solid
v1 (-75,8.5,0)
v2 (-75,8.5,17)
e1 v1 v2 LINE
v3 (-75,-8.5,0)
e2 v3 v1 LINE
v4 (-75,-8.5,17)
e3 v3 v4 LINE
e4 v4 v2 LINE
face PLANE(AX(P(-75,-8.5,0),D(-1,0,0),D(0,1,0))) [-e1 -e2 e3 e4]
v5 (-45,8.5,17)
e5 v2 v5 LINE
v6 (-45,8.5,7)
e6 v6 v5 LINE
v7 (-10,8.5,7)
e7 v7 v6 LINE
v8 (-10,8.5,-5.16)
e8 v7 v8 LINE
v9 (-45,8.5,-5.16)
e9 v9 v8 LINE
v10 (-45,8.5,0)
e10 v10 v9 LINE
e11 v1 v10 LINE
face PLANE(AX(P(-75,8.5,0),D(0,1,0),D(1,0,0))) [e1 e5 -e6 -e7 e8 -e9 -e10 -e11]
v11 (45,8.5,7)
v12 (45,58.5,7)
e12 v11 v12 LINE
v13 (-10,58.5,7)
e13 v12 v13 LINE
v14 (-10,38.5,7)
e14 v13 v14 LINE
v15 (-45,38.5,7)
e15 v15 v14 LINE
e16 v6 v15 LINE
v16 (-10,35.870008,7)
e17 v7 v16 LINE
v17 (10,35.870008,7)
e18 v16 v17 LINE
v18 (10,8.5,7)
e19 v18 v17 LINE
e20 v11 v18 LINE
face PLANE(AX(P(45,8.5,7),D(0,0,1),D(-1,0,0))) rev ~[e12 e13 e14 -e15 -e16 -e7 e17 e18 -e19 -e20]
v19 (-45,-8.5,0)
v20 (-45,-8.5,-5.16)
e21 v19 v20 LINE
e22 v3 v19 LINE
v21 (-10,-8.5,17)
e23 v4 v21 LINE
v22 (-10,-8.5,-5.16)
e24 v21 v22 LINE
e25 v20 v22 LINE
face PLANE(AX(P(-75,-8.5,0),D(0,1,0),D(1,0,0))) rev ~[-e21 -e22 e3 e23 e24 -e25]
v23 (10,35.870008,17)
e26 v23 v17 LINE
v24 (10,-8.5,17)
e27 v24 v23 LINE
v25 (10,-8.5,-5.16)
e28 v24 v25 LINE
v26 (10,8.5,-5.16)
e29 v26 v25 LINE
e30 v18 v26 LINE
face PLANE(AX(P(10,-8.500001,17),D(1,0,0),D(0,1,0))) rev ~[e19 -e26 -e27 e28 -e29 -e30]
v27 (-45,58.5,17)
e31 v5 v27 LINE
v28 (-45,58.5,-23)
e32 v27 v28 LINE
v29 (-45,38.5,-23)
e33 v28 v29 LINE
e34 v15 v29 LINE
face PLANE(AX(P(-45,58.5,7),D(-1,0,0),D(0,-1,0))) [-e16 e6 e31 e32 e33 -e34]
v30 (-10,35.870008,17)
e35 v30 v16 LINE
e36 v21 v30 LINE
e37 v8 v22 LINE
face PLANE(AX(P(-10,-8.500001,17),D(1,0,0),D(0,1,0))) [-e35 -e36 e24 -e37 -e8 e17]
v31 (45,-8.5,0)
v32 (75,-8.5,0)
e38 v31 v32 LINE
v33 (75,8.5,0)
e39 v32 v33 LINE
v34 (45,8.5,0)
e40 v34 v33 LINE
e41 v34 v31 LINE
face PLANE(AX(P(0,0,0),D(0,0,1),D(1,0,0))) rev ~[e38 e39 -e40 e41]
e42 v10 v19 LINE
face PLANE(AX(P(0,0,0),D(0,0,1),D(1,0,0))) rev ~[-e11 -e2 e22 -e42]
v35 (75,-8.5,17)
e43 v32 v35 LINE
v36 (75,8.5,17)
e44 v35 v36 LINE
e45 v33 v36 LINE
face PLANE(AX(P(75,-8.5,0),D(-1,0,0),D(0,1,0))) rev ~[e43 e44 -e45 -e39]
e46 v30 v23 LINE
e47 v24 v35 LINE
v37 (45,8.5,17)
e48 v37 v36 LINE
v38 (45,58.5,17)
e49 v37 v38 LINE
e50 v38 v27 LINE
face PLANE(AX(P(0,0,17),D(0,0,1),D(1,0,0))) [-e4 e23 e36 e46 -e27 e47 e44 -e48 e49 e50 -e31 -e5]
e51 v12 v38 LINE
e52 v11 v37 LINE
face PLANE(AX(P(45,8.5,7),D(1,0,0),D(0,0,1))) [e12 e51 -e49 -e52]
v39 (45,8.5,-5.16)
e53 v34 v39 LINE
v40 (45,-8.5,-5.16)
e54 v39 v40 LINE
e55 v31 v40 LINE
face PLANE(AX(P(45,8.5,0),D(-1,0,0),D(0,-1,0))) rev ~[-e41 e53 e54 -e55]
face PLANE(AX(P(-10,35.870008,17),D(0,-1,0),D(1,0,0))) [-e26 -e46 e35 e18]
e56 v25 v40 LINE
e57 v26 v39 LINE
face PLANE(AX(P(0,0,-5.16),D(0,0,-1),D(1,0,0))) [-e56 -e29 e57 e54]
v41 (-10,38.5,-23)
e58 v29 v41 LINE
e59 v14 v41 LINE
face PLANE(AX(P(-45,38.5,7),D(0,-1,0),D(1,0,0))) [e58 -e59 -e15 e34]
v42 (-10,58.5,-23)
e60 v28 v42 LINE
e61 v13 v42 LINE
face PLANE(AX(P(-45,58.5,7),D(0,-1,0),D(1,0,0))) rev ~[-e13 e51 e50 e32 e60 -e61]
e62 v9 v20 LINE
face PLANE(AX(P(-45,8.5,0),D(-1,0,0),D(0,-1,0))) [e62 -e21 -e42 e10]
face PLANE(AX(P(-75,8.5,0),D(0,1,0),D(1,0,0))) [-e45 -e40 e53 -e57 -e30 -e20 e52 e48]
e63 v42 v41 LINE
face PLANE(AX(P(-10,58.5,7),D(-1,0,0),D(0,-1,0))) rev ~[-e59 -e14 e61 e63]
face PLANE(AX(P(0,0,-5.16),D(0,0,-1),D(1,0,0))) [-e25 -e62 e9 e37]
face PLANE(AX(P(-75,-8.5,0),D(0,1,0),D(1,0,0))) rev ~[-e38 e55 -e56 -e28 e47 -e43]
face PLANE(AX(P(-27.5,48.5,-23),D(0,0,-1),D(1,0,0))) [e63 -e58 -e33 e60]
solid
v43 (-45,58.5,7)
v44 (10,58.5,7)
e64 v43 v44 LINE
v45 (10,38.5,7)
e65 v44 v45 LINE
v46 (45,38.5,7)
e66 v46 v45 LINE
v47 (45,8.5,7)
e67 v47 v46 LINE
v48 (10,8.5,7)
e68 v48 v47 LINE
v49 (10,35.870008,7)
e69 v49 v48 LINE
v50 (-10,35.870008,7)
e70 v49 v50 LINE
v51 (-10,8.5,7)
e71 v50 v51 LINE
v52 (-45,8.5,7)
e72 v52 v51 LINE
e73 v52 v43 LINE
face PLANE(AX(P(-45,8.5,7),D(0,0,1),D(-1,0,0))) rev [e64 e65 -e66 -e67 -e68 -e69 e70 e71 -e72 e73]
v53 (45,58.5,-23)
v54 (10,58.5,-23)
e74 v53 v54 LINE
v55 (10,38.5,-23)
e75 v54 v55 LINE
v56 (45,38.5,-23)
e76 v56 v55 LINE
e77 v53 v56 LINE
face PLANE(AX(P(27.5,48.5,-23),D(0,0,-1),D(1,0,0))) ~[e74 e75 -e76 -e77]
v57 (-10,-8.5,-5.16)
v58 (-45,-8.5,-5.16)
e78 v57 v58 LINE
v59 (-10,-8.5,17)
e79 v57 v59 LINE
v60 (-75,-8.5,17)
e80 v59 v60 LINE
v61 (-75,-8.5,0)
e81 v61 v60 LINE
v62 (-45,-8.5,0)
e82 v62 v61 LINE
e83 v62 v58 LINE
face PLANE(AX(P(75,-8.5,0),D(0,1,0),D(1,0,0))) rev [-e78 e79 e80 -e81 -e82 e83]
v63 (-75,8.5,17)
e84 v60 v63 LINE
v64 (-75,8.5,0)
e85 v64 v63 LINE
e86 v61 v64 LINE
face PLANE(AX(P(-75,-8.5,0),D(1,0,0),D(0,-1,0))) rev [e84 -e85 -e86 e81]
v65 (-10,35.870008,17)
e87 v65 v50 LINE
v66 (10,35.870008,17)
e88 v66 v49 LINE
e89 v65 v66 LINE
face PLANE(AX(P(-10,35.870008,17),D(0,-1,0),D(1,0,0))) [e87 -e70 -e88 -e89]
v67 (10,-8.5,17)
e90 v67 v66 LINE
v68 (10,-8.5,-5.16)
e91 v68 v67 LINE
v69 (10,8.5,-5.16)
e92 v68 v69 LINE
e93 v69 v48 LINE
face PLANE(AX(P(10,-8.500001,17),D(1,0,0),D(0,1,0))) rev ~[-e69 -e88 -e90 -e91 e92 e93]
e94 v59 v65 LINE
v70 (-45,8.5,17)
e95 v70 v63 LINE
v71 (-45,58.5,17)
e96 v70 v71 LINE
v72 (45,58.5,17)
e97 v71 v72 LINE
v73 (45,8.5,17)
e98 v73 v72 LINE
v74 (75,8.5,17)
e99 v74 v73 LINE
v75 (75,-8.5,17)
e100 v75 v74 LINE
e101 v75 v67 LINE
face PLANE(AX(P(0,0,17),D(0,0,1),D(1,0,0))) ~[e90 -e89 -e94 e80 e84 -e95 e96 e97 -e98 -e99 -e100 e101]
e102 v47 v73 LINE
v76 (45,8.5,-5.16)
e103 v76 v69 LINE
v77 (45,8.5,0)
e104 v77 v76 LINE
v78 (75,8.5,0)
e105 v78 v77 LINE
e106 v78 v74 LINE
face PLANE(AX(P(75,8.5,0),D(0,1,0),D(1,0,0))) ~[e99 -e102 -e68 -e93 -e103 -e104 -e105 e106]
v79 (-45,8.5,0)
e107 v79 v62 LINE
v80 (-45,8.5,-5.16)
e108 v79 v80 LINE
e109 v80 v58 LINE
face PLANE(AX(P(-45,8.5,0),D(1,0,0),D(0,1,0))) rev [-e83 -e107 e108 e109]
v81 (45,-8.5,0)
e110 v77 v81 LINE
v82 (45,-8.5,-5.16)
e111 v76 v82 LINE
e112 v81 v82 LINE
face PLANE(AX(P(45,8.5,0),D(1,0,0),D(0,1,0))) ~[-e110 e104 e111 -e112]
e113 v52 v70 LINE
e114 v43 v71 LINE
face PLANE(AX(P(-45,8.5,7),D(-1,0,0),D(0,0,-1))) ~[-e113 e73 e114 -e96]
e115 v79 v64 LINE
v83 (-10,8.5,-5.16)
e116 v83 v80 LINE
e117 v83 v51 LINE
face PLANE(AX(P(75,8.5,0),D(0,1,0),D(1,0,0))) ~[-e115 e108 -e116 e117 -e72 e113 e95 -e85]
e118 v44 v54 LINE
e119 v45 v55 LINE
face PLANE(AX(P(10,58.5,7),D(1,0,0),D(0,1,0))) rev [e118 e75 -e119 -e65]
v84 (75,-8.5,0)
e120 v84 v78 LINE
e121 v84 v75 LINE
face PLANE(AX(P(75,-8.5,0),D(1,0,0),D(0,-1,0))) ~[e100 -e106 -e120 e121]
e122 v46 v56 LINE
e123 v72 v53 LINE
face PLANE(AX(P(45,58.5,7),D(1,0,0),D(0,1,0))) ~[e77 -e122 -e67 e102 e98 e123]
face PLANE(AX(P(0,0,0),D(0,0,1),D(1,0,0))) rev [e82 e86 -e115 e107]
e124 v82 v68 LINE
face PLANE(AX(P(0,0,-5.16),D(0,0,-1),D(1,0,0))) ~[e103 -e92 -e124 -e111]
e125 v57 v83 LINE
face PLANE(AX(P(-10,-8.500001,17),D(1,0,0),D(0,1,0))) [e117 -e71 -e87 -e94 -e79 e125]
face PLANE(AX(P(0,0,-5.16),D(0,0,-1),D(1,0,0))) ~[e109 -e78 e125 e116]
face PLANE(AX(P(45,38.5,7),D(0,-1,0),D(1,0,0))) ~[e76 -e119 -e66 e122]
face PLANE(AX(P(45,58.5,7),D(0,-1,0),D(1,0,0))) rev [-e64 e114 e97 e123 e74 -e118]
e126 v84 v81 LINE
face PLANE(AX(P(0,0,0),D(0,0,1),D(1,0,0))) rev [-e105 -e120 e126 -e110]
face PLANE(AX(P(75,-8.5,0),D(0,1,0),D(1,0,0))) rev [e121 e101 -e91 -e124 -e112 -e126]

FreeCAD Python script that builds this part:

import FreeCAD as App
import Part
import Sketcher
from FreeCAD import Vector
Q = App.Units.Quantity

doc = App.newDocument("Part")
body = doc.addObject("PartDesign::Body", "Body")

# Sketch on XY plane
sketch1 = body.newObject("Sketcher::SketchObject", "Sketch")
sketch1.AttachmentSupport = (doc.getObject("XY_Plane"), [""])
sketch1.MapMode = "FlatFace"
sketch1.addGeometry(Part.LineSegment(Vector(-75, 8.5, 0), Vector(-75, -8.5, 0)), False)
sketch1.addGeometry(Part.LineSegment(Vector(-75, -8.5, 0), Vector(75, -8.5, 0)), False)
sketch1.addGeometry(Part.LineSegment(Vector(75, -8.5, 0), Vector(75, 8.5, 0)), False)
sketch1.addGeometry(Part.LineSegment(Vector(75, 8.5, 0), Vector(-75, 8.5, 0)), False)
sketch1.addConstraint(Sketcher.Constraint("Coincident", 0, 2, 1, 1))
sketch1.addConstraint(Sketcher.Constraint("Coincident", 1, 2, 2, 1))
sketch1.addConstraint(Sketcher.Constraint("Coincident", 2, 2, 3, 1))
sketch1.addConstraint(Sketcher.Constraint("Coincident", 3, 2, 0, 1))
sketch1.addConstraint(Sketcher.Constraint("Vertical", 0))
sketch1.addConstraint(Sketcher.Constraint("Horizontal", 1))
sketch1.addConstraint(Sketcher.Constraint("Vertical", 2))
sketch1.addConstraint(Sketcher.Constraint("Horizontal", 3))
sketch1.addConstraint(Sketcher.Constraint("Symmetric", 0, 2, 2, 2, -1, 1))
sketch1.addConstraint(Sketcher.Constraint("DistanceX", 1, 1, 1, 2, Q("150 mm")))
sketch1.addConstraint(Sketcher.Constraint("DistanceY", 0, 2, 0, 1, Q("17 mm")))
pad1 = body.newObject("PartDesign::Pad", "Pad")
pad1.Profile = sketch1
pad1.Length = 17

# Sketch on XY plane
sketch2 = body.newObject("Sketcher::SketchObject", "Sketch001")
sketch2.AttachmentSupport = (doc.getObject("XY_Plane"), [""])
sketch2.MapMode = "FlatFace"
sketch2.addGeometry(Part.LineSegment(Vector(-45, -8.5, 0), Vector(-45, 8.5, 0)), False)
sketch2.addGeometry(Part.LineSegment(Vector(-45, 8.5, 0), Vector(45, 8.5, 0)), False)
sketch2.addGeometry(Part.LineSegment(Vector(45, 8.5, 0), Vector(45, -8.5, 0)), False)
sketch2.addGeometry(Part.LineSegment(Vector(45, -8.5, 0), Vector(-45, -8.5, 0)), False)
sketch2.addConstraint(Sketcher.Constraint("Coincident", 0, 2, 1, 1))
sketch2.addConstraint(Sketcher.Constraint("Coincident", 1, 2, 2, 1))
sketch2.addConstraint(Sketcher.Constraint("Coincident", 2, 2, 3, 1))
sketch2.addConstraint(Sketcher.Constraint("Coincident", 3, 2, 0, 1))
sketch2.addConstraint(Sketcher.Constraint("Vertical", 0))
sketch2.addConstraint(Sketcher.Constraint("Horizontal", 1))
sketch2.addConstraint(Sketcher.Constraint("Vertical", 2))
sketch2.addConstraint(Sketcher.Constraint("Horizontal", 3))
sketch2.addConstraint(Sketcher.Constraint("Symmetric", 0, 2, 2, 2, -1, 1))
sketch2.addConstraint(Sketcher.Constraint("DistanceX", 1, 1, 1, 2, Q("90 mm")))
sketch2.addConstraint(Sketcher.Constraint("DistanceY", 0, 1, 0, 2, Q("17 mm")))
pad2 = body.newObject("PartDesign::Pad", "Pad001")
pad2.Profile = sketch2
pad2.Length = 5.16
pad2.Reversed = True

# Sketch on XZ plane
sketch3 = body.newObject("Sketcher::SketchObject", "Sketch002")
sketch3.AttachmentSupport = (doc.getObject("XZ_Plane"), [""])
sketch3.MapMode = "FlatFace"
sketch3.AttachmentOffset = App.Placement(Vector(0, 0, -8.5), App.Rotation())
sketch3.addGeometry(Part.LineSegment(Vector(45, 17, 0), Vector(45, 7, 0)), False)
sketch3.addGeometry(Part.LineSegment(Vector(45, 7, 0), Vector(-45, 7, 0)), False)
sketch3.addGeometry(Part.LineSegment(Vector(-45, 7, 0), Vector(-45, 17, 0)), False)
sketch3.addGeometry(Part.LineSegment(Vector(-45, 17, 0), Vector(45, 17, 0)), False)
sketch3.addConstraint(Sketcher.Constraint("Coincident", 0, 2, 1, 1))
sketch3.addConstraint(Sketcher.Constraint("Coincident", 1, 2, 2, 1))
sketch3.addConstraint(Sketcher.Constraint("Coincident", 2, 2, 3, 1))
sketch3.addConstraint(Sketcher.Constraint("Coincident", 3, 2, 0, 1))
sketch3.addConstraint(Sketcher.Constraint("Vertical", 0))
sketch3.addConstraint(Sketcher.Constraint("Horizontal", 1))
sketch3.addConstraint(Sketcher.Constraint("Vertical", 2))
sketch3.addConstraint(Sketcher.Constraint("Horizontal", 3))
sketch3.addConstraint(Sketcher.Constraint("DistanceX", 1, 2, 1, 1, Q("90 mm")))
sketch3.addConstraint(Sketcher.Constraint("DistanceY", 0, 2, 0, 1, Q("10 mm")))
sketch3.addConstraint(Sketcher.Constraint("DistanceX", -1, 1, 0, 2, Q("45 mm")))
sketch3.addConstraint(Sketcher.Constraint("DistanceY", -1, 1, 0, 2, Q("7 mm")))
pad3 = body.newObject("PartDesign::Pad", "Pad002")
pad3.Profile = sketch3
pad3.Length = 50
pad3.Reversed = True

# Sketch on XY plane
sketch4 = body.newObject("Sketcher::SketchObject", "Sketch003")
sketch4.AttachmentSupport = (doc.getObject("XY_Plane"), [""])
sketch4.MapMode = "FlatFace"
sketch4.AttachmentOffset = App.Placement(Vector(0, 0, 7), App.Rotation())
sketch4.addGeometry(Part.LineSegment(Vector(-45, 38.5, 0), Vector(-45, 58.5, 0)), False)
sketch4.addGeometry(Part.LineSegment(Vector(-45, 58.5, 0), Vector(-10, 58.5, 0)), False)
sketch4.addGeometry(Part.LineSegment(Vector(-10, 58.5, 0), Vector(-10, 38.5, 0)), False)
sketch4.addGeometry(Part.LineSegment(Vector(-10, 38.5, 0), Vector(-45, 38.5, 0)), False)
sketch4.addConstraint(Sketcher.Constraint("Coincident", 0, 2, 1, 1))
sketch4.addConstraint(Sketcher.Constraint("Coincident", 1, 2, 2, 1))
sketch4.addConstraint(Sketcher.Constraint("Coincident", 2, 2, 3, 1))
sketch4.addConstraint(Sketcher.Constraint("Coincident", 3, 2, 0, 1))
sketch4.addConstraint(Sketcher.Constraint("Vertical", 0))
sketch4.addConstraint(Sketcher.Constraint("Horizontal", 1))
sketch4.addConstraint(Sketcher.Constraint("Vertical", 2))
sketch4.addConstraint(Sketcher.Constraint("Horizontal", 3))
sketch4.addConstraint(Sketcher.Constraint("DistanceX", 1, 1, 1, 2, Q("35 mm")))
sketch4.addConstraint(Sketcher.Constraint("DistanceY", 0, 1, 0, 2, Q("20 mm")))
sketch4.addConstraint(Sketcher.Constraint("DistanceX", 0, 2, -1, 1, Q("45 mm")))
sketch4.addConstraint(Sketcher.Constraint("DistanceY", -1, 1, 0, 2, Q("58.5 mm")))
pad4 = body.newObject("PartDesign::Pad", "Pad003")
pad4.Profile = sketch4
pad4.Length = 30
pad4.Reversed = True
body2 = doc.addObject("PartDesign::Body", "Body001")
doc.recompute()

mirroring = doc.addObject("Part::Mirroring", "Mirroring")
mirroring.Source = body
mirroring.Base = Vector(0, 0, 0)
mirroring.Normal = Vector(1, 0, 0)
body2.BaseFeature = mirroring
doc.recompute()
body3 = doc.addObject("PartDesign::Body", "Body002")

# Sketch on XY plane
sketch5 = body3.newObject("Sketcher::SketchObject", "Sketch004")
sketch5.AttachmentSupport = (doc.getObject("XY_Plane002"), [""])
sketch5.MapMode = "FlatFace"
sketch5.AttachmentOffset = App.Placement(Vector(0, 0, 17), App.Rotation())
sketch5.addGeometry(Part.LineSegment(Vector(-10, 35.870008, 0), Vector(-10, -8.500001, 0)), False)
sketch5.addGeometry(Part.LineSegment(Vector(-10, -8.500001, 0), Vector(10, -8.500001, 0)), False)
sketch5.addGeometry(Part.LineSegment(Vector(10, -8.500001, 0), Vector(10, 35.870008, 0)), False)
sketch5.addGeometry(Part.LineSegment(Vector(10, 35.870008, 0), Vector(-10, 35.870008, 0)), False)
sketch5.addConstraint(Sketcher.Constraint("Coincident", 0, 2, 1, 1))
sketch5.addConstraint(Sketcher.Constraint("Coincident", 1, 2, 2, 1))
sketch5.addConstraint(Sketcher.Constraint("Coincident", 2, 2, 3, 1))
sketch5.addConstraint(Sketcher.Constraint("Coincident", 3, 2, 0, 1))
sketch5.addConstraint(Sketcher.Constraint("Vertical", 0))
sketch5.addConstraint(Sketcher.Constraint("Horizontal", 1))
sketch5.addConstraint(Sketcher.Constraint("Vertical", 2))
sketch5.addConstraint(Sketcher.Constraint("Horizontal", 3))
sketch5.addConstraint(Sketcher.Constraint("DistanceX", 1, 1, 1, 2, Q("20 mm")))
sketch5.addConstraint(Sketcher.Constraint("DistanceX", 0, 2, -1, 1, Q("10 mm")))
sketch5.addConstraint(Sketcher.Constraint("DistanceY", 0, 2, -1, 1, Q("8.500001 mm")))
sketch5.addConstraint(Sketcher.Constraint("DistanceY", 0, 2, 0, 1, Q("44.370009 mm")))
pad5 = body3.newObject("PartDesign::Pad", "Pad004")
pad5.Profile = sketch5
pad5.Length = 50
pad5.Reversed = True
doc.recompute()

body4 = doc.addObject("PartDesign::Body", "Body003")
body4.BaseFeature = body3
boolean = body.newObject("PartDesign::Boolean", "Boolean")
boolean.Type = "Cut"
boolean.addObjects([body4])
doc.recompute()

boolean2 = body2.newObject("PartDesign::Boolean", "Boolean001")
boolean2.Type = "Cut"
boolean2.addObjects([body3])
mirroring.Visibility = False

doc.recompute()
